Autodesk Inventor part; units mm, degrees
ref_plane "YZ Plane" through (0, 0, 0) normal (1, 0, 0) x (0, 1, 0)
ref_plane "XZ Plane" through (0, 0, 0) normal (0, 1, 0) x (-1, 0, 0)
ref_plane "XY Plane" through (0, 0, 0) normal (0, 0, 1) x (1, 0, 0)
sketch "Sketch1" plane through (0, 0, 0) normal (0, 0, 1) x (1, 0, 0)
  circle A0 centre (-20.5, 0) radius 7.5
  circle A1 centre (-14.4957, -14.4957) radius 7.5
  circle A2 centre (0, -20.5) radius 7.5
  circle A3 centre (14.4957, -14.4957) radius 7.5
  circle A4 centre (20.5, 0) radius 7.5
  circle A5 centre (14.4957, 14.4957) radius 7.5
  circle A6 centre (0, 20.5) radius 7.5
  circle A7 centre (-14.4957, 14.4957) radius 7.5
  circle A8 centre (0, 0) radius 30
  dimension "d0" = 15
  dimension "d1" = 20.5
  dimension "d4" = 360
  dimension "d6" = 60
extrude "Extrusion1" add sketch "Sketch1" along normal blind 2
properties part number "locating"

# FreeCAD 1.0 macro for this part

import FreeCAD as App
import Part
import Sketcher

V = App.Vector

doc = App.newDocument("Part")
body = doc.addObject("PartDesign::Body", "Body")

# Sketch on XY plane
sketch1 = body.newObject("Sketcher::SketchObject", "Sketch")
sketch1.AttachmentSupport = (doc.getObject("XY_Plane"), [""])
sketch1.MapMode = "FlatFace"
sketch1.addGeometry(Part.Circle(V(0, 0, 0), V(0, 0, 1), 30), False)
sketch1.addGeometry(Part.Circle(V(-14, -14, 0), V(0, 0, 1), 8), False)
sketch1.addGeometry(Part.Circle(V(0, -20, 0), V(0, 0, 1), 8), False)
sketch1.addGeometry(Part.Circle(V(14, -14, 0), V(0, 0, 1), 8), False)
sketch1.addGeometry(Part.Circle(V(-20, 0, 0), V(0, 0, 1), 8), False)
sketch1.addGeometry(Part.Circle(V(-14, 14, 0), V(0, 0, 1), 8), False)
sketch1.addGeometry(Part.Circle(V(14, 14, 0), V(0, 0, 1), 8), False)
sketch1.addGeometry(Part.Circle(V(20, 0, 0), V(0, 0, 1), 8), False)
sketch1.addGeometry(Part.Circle(V(0, 20, 0), V(0, 0, 1), 8), False)
sketch1.addConstraint(Sketcher.Constraint("Coincident", 0, 3, -1, 1))
sketch1.addConstraint(Sketcher.Constraint("Equal", 1, 2))
sketch1.addConstraint(Sketcher.Constraint("Equal", 2, 3))
sketch1.addConstraint(Sketcher.Constraint("Equal", 3, 4))
sketch1.addConstraint(Sketcher.Constraint("Equal", 4, 5))
sketch1.addConstraint(Sketcher.Constraint("Equal", 5, 6))
sketch1.addConstraint(Sketcher.Constraint("Equal", 6, 7))
sketch1.addConstraint(Sketcher.Constraint("Equal", 7, 8))
sketch1.addConstraint(Sketcher.Constraint("Symmetric", 3, 3, 5, 3, -1, 1))
sketch1.addConstraint(Sketcher.Constraint("Symmetric", 1, 3, 6, 3, -1, 1))
sketch1.addConstraint(Sketcher.Constraint("Symmetric", 4, 3, 7, 3, -1, 1))
sketch1.addConstraint(Sketcher.Constraint("Symmetric", 2, 3, 8, 3, -1, 1))
sketch1.addConstraint(Sketcher.Constraint("Symmetric", 1, 3, 3, 3, -2))
sketch1.addConstraint(Sketcher.Constraint("PointOnObject", 2, 3, -2))
sketch1.addConstraint(Sketcher.Constraint("PointOnObject", 4, 3, -1))
sketch1.addConstraint(Sketcher.Constraint("Diameter", 0, 60.0))
sketch1.addConstraint(Sketcher.Constraint("Diameter", 1, 15.0))
sketch1.addConstraint(Sketcher.Constraint("DistanceY", 2, 3, -1, 1, 20.5))
sketch1.addConstraint(Sketcher.Constraint("DistanceX", 4, 3, -1, 1, 20.5))
sketch1.addConstraint(Sketcher.Constraint("DistanceX", 1, 3, -1, 1, 14.4957))
sketch1.addConstraint(Sketcher.Constraint("DistanceY", 1, 3, -1, 1, 14.4957))
pad1 = body.newObject("PartDesign::Pad", "Pad")
pad1.Profile = sketch1
pad1.Length = 2

doc.recompute()
